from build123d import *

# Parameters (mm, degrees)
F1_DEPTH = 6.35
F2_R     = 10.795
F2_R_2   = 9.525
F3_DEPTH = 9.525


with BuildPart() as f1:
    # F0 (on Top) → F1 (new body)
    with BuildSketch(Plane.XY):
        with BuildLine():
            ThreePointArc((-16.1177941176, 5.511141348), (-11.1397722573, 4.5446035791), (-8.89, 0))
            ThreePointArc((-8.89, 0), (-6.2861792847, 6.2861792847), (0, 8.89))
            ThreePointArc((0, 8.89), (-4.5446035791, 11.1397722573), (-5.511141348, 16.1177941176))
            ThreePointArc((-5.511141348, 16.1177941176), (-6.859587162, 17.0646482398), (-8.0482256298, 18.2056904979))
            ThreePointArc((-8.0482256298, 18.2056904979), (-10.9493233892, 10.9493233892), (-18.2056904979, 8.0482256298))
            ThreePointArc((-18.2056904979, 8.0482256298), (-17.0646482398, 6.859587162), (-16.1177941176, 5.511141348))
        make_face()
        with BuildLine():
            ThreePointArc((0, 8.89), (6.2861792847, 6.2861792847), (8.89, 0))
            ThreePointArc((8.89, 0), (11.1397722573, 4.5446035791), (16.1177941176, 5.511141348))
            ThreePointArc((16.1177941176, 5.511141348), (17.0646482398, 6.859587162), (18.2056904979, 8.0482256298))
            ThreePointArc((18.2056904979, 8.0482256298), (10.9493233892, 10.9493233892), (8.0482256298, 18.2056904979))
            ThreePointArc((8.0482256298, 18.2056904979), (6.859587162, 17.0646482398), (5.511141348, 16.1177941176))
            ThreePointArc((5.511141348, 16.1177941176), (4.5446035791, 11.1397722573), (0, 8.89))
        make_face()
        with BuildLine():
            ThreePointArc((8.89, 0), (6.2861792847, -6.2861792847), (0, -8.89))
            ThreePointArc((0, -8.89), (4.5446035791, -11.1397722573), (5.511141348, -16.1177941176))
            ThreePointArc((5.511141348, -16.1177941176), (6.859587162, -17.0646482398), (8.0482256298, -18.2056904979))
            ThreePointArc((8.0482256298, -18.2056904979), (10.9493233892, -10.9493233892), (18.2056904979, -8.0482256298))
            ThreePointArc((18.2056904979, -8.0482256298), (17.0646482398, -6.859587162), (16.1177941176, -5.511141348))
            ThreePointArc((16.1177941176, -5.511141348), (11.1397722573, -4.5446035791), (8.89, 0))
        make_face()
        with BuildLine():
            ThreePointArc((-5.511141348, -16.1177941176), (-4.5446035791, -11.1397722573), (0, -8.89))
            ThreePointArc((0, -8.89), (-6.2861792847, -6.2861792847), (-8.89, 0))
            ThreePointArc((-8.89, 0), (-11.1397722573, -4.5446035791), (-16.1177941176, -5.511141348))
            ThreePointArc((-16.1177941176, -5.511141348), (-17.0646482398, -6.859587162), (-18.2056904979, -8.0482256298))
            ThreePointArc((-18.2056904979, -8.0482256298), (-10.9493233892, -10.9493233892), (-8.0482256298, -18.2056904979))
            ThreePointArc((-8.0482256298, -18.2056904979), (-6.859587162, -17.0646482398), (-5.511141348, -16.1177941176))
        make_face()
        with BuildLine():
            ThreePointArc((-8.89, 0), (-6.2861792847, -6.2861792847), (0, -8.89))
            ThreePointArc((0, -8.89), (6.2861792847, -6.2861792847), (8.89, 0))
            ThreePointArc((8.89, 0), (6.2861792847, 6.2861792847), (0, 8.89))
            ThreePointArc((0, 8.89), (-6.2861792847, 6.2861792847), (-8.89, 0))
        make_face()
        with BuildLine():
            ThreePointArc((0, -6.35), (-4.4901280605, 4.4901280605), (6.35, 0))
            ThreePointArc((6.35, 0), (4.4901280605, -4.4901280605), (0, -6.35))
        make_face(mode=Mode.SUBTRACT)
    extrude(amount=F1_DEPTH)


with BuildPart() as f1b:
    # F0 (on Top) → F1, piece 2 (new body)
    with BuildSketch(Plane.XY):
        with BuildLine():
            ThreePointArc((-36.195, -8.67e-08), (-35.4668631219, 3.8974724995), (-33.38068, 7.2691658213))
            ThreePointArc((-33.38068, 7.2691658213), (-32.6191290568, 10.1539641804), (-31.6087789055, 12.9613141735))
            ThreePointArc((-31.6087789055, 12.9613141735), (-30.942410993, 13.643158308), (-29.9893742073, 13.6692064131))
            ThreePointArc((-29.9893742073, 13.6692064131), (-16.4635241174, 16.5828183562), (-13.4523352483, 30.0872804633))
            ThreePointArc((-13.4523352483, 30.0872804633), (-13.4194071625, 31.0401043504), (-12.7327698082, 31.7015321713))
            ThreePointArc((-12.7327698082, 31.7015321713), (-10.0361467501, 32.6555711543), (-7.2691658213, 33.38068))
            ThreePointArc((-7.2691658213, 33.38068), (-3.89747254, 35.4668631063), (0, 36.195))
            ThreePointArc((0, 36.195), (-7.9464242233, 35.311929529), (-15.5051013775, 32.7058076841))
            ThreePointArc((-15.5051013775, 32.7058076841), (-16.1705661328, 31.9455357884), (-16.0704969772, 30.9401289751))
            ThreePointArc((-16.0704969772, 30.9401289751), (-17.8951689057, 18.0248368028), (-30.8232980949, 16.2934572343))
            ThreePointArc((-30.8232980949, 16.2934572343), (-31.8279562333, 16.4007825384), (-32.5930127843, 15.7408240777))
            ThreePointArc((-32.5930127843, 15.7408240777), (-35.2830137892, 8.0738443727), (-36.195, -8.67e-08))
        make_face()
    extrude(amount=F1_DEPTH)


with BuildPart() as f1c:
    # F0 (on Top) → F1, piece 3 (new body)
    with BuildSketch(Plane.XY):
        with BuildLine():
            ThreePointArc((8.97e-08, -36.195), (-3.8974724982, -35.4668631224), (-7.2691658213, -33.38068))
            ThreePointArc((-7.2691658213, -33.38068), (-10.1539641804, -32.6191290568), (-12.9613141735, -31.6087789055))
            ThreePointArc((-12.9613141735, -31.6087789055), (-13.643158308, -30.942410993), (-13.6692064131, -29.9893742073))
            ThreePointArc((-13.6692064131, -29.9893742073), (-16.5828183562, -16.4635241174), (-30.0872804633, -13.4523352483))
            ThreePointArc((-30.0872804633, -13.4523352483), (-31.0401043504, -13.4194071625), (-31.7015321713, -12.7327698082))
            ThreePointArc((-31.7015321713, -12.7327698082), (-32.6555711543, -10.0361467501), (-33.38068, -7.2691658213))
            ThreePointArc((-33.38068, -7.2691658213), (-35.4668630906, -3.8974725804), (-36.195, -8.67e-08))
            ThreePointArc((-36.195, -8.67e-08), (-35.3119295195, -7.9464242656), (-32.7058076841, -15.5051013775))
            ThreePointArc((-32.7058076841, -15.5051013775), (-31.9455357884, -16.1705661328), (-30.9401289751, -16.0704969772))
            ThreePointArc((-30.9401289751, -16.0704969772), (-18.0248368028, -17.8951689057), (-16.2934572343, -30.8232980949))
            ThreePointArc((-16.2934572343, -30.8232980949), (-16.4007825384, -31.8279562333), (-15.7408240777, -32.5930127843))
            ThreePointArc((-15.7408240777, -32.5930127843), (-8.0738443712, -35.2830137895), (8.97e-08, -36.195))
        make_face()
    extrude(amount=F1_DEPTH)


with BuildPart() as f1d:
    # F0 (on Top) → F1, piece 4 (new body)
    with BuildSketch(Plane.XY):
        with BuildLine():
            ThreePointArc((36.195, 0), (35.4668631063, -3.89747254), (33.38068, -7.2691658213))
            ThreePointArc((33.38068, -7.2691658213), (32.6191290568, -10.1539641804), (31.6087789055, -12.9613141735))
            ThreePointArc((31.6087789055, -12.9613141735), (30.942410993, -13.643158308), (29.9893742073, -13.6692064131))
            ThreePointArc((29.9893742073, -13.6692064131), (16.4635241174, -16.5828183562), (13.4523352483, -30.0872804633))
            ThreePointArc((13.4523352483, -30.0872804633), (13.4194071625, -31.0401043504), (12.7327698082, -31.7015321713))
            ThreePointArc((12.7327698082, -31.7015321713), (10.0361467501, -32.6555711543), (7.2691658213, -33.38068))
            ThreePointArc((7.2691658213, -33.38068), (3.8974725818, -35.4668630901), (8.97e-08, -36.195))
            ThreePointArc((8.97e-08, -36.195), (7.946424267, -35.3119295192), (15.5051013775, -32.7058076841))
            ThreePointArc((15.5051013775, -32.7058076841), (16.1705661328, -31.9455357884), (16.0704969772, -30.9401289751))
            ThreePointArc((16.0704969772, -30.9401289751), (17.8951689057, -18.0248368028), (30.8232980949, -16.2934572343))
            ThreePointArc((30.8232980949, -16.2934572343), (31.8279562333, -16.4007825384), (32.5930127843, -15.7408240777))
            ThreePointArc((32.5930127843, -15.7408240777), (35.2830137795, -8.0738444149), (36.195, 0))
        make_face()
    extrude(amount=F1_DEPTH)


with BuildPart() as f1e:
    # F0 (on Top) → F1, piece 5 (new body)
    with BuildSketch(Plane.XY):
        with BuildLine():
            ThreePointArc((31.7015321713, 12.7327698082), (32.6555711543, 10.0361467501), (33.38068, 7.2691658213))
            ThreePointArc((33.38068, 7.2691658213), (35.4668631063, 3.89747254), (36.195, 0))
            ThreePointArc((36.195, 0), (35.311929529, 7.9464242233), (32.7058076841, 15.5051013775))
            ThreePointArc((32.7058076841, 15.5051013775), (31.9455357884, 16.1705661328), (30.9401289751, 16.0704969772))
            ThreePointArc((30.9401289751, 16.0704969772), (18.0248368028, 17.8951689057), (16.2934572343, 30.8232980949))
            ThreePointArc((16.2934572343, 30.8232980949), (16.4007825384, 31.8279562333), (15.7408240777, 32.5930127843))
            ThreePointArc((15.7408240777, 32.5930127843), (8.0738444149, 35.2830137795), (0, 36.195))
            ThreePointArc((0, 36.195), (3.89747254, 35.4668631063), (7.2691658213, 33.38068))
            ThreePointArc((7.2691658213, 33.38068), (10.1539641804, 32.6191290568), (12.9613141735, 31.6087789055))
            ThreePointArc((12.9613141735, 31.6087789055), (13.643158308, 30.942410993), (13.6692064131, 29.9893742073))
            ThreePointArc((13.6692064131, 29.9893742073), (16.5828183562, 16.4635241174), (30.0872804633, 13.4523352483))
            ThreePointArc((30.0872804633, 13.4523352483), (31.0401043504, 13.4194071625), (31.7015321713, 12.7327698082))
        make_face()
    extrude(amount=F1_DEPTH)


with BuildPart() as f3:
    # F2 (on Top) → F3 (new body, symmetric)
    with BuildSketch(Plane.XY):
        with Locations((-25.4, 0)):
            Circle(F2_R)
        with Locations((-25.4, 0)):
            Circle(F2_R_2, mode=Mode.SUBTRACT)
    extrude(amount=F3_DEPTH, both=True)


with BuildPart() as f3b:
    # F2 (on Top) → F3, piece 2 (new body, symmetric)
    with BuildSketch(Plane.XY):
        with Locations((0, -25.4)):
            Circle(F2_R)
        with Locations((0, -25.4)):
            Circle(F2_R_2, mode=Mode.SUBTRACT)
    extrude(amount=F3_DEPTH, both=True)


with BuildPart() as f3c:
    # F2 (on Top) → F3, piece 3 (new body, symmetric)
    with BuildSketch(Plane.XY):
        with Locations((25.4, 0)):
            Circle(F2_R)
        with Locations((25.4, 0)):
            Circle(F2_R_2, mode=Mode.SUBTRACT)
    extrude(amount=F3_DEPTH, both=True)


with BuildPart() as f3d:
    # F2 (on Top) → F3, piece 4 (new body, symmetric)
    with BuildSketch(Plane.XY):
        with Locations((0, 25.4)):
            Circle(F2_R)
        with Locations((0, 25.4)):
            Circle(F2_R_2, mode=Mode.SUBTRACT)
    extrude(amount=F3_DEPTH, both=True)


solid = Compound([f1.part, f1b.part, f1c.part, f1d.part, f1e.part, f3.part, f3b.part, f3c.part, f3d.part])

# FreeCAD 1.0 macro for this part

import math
import FreeCAD as App
import Part
import Sketcher
Q = App.Units.Quantity

doc = App.newDocument("Part")
body = doc.addObject("PartDesign::Body", "Body")

# Sketch on XY plane
sketch1 = body.newObject("Sketcher::SketchObject", "Sketch")
sketch1.AttachmentSupport = (doc.getObject("XY_Plane"), [""])
sketch1.MapMode = "FlatFace"
sketch1.addGeometry([
    Part.ArcOfCircle(Part.Circle(App.Vector(-14.6, 0, 0), App.Vector(0, 0, 1), 5.7), math.radians(0), math.radians(105)),  # 0
    Part.ArcOfCircle(Part.Circle(App.Vector(-14.6, 0, 0), App.Vector(0, 0, 1), 5.7), math.radians(-105), math.radians(0)),  # 1
    Part.ArcOfCircle(Part.Circle(App.Vector(-25.4, 0, 0), App.Vector(0, 0, 1), 10.8), math.radians(-48.21), math.radians(-30.7)),  # 2
    Part.ArcOfCircle(Part.Circle(App.Vector(-18, -18, 0), App.Vector(0, 0, 1), 9.9), math.radians(-1), math.radians(91)),  # 3
    Part.ArcOfCircle(Part.Circle(App.Vector(0, -25.4, 0), App.Vector(0, 0, 1), 10.8), math.radians(120.7), math.radians(138.21)),  # 4
    Part.ArcOfCircle(Part.Circle(App.Vector(0, -14.6, 0), App.Vector(0, 0, 1), 5.7), math.radians(90), math.radians(195)),  # 5
    Part.ArcOfCircle(Part.Circle(App.Vector(0, -14.6, 0), App.Vector(0, 0, 1), 5.7), math.radians(-15), math.radians(90)),  # 6
    Part.ArcOfCircle(Part.Circle(App.Vector(0, -25.4, 0), App.Vector(0, 0, 1), 10.8), math.radians(41.79), math.radians(59.3)),  # 7
    Part.ArcOfCircle(Part.Circle(App.Vector(18, -18, 0), App.Vector(0, 0, 1), 9.9), math.radians(89), math.radians(181)),  # 8
    Part.ArcOfCircle(Part.Circle(App.Vector(25.4, 0, 0), App.Vector(0, 0, 1), 10.8), math.radians(-149.3), math.radians(-131.79)),  # 9
    Part.ArcOfCircle(Part.Circle(App.Vector(14.6, 0, 0), App.Vector(0, 0, 1), 5.7), math.radians(180), math.radians(285)),  # 10
    Part.ArcOfCircle(Part.Circle(App.Vector(14.6, 0, 0), App.Vector(0, 0, 1), 5.7), math.radians(75), math.radians(180)),  # 11
    Part.ArcOfCircle(Part.Circle(App.Vector(25.4, 0, 0), App.Vector(0, 0, 1), 10.8), math.radians(131.79), math.radians(149.3)),  # 12
    Part.ArcOfCircle(Part.Circle(App.Vector(18, 18, 0), App.Vector(0, 0, 1), 9.9), math.radians(179), math.radians(271)),  # 13
    Part.ArcOfCircle(Part.Circle(App.Vector(0, 25.4, 0), App.Vector(0, 0, 1), 10.8), math.radians(-59.3), math.radians(-41.79)),  # 14
    Part.ArcOfCircle(Part.Circle(App.Vector(0, 14.6, 0), App.Vector(0, 0, 1), 5.7), math.radians(-90), math.radians(15)),  # 15
    Part.ArcOfCircle(Part.Circle(App.Vector(0, 14.6, 0), App.Vector(0, 0, 1), 5.7), math.radians(165), math.radians(270)),  # 16
    Part.ArcOfCircle(Part.Circle(App.Vector(0, 25.4, 0), App.Vector(0, 0, 1), 10.8), math.radians(-138.21), math.radians(-120.7)),  # 17
    Part.ArcOfCircle(Part.Circle(App.Vector(-18, 18, 0), App.Vector(0, 0, 1), 9.9), math.radians(-91), math.radians(1)),  # 18
    Part.ArcOfCircle(Part.Circle(App.Vector(-25.4, 0, 0), App.Vector(0, 0, 1), 10.8), math.radians(30.7), math.radians(48.21)),  # 19
    Part.ArcOfCircle(Part.Circle(App.Vector(0, 0, 0), App.Vector(0, 0, 1), 6.3), math.radians(-90), math.radians(0)),  # 20
    Part.ArcOfCircle(Part.Circle(App.Vector(0, 0, 0), App.Vector(0, 0, 1), 6.3), math.radians(0), math.radians(270)),  # 21
], False)
sketch1.addConstraint([
    Sketcher.Constraint("Tangent", 0, 1, 1, 2),
    Sketcher.Constraint("Coincident", 1, 1, 2, 2),
    Sketcher.Constraint("Coincident", 2, 1, 3, 2),
    Sketcher.Constraint("Coincident", 3, 1, 4, 2),
    Sketcher.Constraint("Coincident", 4, 1, 5, 2),
    Sketcher.Constraint("Tangent", 5, 1, 6, 2),
    Sketcher.Constraint("Coincident", 6, 1, 7, 2),
    Sketcher.Constraint("Coincident", 7, 1, 8, 2),
    Sketcher.Constraint("Coincident", 8, 1, 9, 2),
    Sketcher.Constraint("Coincident", 9, 1, 10, 2),
    Sketcher.Constraint("Tangent", 10, 1, 11, 2),
    Sketcher.Constraint("Coincident", 11, 1, 12, 2),
    Sketcher.Constraint("Coincident", 12, 1, 13, 2),
    Sketcher.Constraint("Coincident", 13, 1, 14, 2),
    Sketcher.Constraint("Coincident", 14, 1, 15, 2),
    Sketcher.Constraint("Tangent", 15, 1, 16, 2),
    Sketcher.Constraint("Coincident", 16, 1, 17, 2),
    Sketcher.Constraint("Coincident", 17, 1, 18, 2),
    Sketcher.Constraint("Coincident", 18, 1, 19, 2),
    Sketcher.Constraint("Coincident", 19, 1, 0, 2),
    Sketcher.Constraint("Tangent", 20, 1, 21, 2),
    Sketcher.Constraint("Coincident", 21, 1, 20, 2),
    Sketcher.Constraint("Coincident", 20, 3, -1, 1),
    Sketcher.Constraint("Coincident", 7, 3, 4, 3),
    Sketcher.Constraint("Coincident", 12, 3, 9, 3),
    Sketcher.Constraint("Coincident", 17, 3, 14, 3),
    Sketcher.Constraint("Coincident", 19, 3, 2, 3),
    Sketcher.Constraint("Equal", 0, 1),
    Sketcher.Constraint("Equal", 2, 4),
    Sketcher.Constraint("Equal", 1, 5),
    Sketcher.Constraint("Equal", 5, 6),
    Sketcher.Constraint("Equal", 4, 7),
    Sketcher.Constraint("Equal", 3, 8),
    Sketcher.Constraint("Equal", 7, 9),
    Sketcher.Constraint("Equal", 6, 10),
    Sketcher.Constraint("Equal", 10, 11),
    Sketcher.Constraint("Equal", 9, 12),
    Sketcher.Constraint("Equal", 8, 13),
    Sketcher.Constraint("Equal", 12, 14),
    Sketcher.Constraint("Equal", 11, 15),
    Sketcher.Constraint("Equal", 15, 16),
    Sketcher.Constraint("Equal", 14, 17),
    Sketcher.Constraint("Equal", 13, 18),
    Sketcher.Constraint("Equal", 17, 19),
    Sketcher.Constraint("Symmetric", 2, 3, 9, 3, -1, 1),
    Sketcher.Constraint("Symmetric", 0, 3, 10, 3, -1, 1),
    Sketcher.Constraint("Symmetric", 3, 3, 13, 3, -1, 1),
    Sketcher.Constraint("Symmetric", 4, 3, 14, 3, -1, 1),
    Sketcher.Constraint("Symmetric", 5, 3, 15, 3, -1, 1),
    Sketcher.Constraint("Symmetric", 8, 3, 18, 3, -1, 1),
    Sketcher.Constraint("Symmetric", 3, 3, 8, 3, -2),
    Sketcher.Constraint("Symmetric", 4, 1, 6, 1, -2),
    Sketcher.Constraint("Symmetric", 1, 1, 9, 1, -2),
    Sketcher.Constraint("PointOnObject", 0, 1, -1),
    Sketcher.Constraint("PointOnObject", 5, 1, -2),
    Sketcher.Constraint("PointOnObject", 10, 1, -1),
    Sketcher.Constraint("PointOnObject", 15, 1, -2),
    Sketcher.Constraint("PointOnObject", 20, 1, -2),
    Sketcher.Constraint("PointOnObject", 21, 1, -1),
    Sketcher.Constraint("Radius", 20, Q("0.25 in")),
    Sketcher.Constraint("DistanceX", 2, 3, -1, 1, Q("1 in")),
    Sketcher.Constraint("DistanceY", 4, 3, -1, 1, Q("1 in")),
    Sketcher.Constraint("Radius", 0, Q("0.225 in")),
    Sketcher.Constraint("Radius", 2, Q("0.425 in")),
    Sketcher.Constraint("DistanceY", 5, 1, 20, 1, Q("0.1 in")),
    Sketcher.Constraint("DistanceX", 21, 1, 10, 1, Q("0.1 in")),
    Sketcher.Constraint("Radius", 3, 9.915318),
    Sketcher.Constraint("DistanceX", 2, 1, -1, 1, 18.20569),
    Sketcher.Constraint("DistanceY", 3, 1, -1, 1, 18.20569),
])
pad1 = body.newObject("PartDesign::Pad", "Pad")
pad1.Profile = sketch1
pad1.Length = Q("0.25 in")
body2 = doc.addObject("PartDesign::Body", "Body001")

# Sketch on XY plane
sketch2 = body2.newObject("Sketcher::SketchObject", "Sketch001")
sketch2.AttachmentSupport = (doc.getObject("XY_Plane001"), [""])
sketch2.MapMode = "FlatFace"
sketch2.addGeometry([
    Part.ArcOfCircle(Part.Circle(App.Vector(-25.4, 0, 0), App.Vector(0, 0, 1), 10.8), math.radians(138), math.radians(180)),  # 0
    Part.ArcOfCircle(Part.Circle(App.Vector(0, 0, 0), App.Vector(0, 0, 1), 34.2), math.radians(157.7), math.radians(167.71)),  # 1
    Part.ArcOfCircle(Part.Circle(App.Vector(-30.4, 12.5, 0), App.Vector(0, 0, 1), 1.3), math.radians(70), math.radians(158)),  # 2
    Part.ArcOfCircle(Part.Circle(App.Vector(-25.5, 25.7, 0), App.Vector(0, 0, 1), 12.8), math.radians(-110), math.radians(20)),  # 3
    Part.ArcOfCircle(Part.Circle(App.Vector(-12.3, 30.5, 0), App.Vector(0, 0, 1), 1.3), math.radians(112), math.radians(200)),  # 4
    Part.ArcOfCircle(Part.Circle(App.Vector(0, 0, 0), App.Vector(0, 0, 1), 34.2), math.radians(102.29), math.radians(111.88)),  # 5
    Part.ArcOfCircle(Part.Circle(App.Vector(0, 25.4, 0), App.Vector(0, 0, 1), 10.8), math.radians(90), math.radians(132)),  # 6
    Part.ArcOfCircle(Part.Circle(App.Vector(0, 0, 0), App.Vector(0, 0, 1), 36.2), math.radians(90), math.radians(115)),  # 7
    Part.ArcOfCircle(Part.Circle(App.Vector(-15, 31.6, 0), App.Vector(0, 0, 1), 1.3), math.radians(115), math.radians(209)),  # 8
    Part.ArcOfCircle(Part.Circle(App.Vector(-25.5, 25.7, 0), App.Vector(0, 0, 1), 10.8), math.radians(-120), math.radians(29)),  # 9
    Part.ArcOfCircle(Part.Circle(App.Vector(-31.4, 15.2, 0), App.Vector(0, 0, 1), 1.3), math.radians(60), math.radians(154)),  # 10
    Part.ArcOfCircle(Part.Circle(App.Vector(0, 0, 0), App.Vector(0, 0, 1), 36.2), math.radians(154), math.radians(180)),  # 11
], False)
sketch2.addConstraint([
    Sketcher.Constraint("Coincident", 0, 1, 1, 2),
    Sketcher.Constraint("Tangent", 1, 1, 2, 2),
    Sketcher.Constraint("Tangent", 2, 1, 3, 1),
    Sketcher.Constraint("Tangent", 3, 2, 4, 2),
    Sketcher.Constraint("Tangent", 4, 1, 5, 2),
    Sketcher.Constraint("Coincident", 5, 1, 6, 2),
    Sketcher.Constraint("Tangent", 6, 1, 7, 1),
    Sketcher.Constraint("Tangent", 7, 2, 8, 1),
    Sketcher.Constraint("Tangent", 8, 2, 9, 2),
    Sketcher.Constraint("Tangent", 9, 1, 10, 1),
    Sketcher.Constraint("Tangent", 10, 2, 11, 1),
    Sketcher.Constraint("Tangent", 11, 2, 0, 2),
    Sketcher.Constraint("Coincident", 1, 3, -1, 1),
    Sketcher.Constraint("Coincident", 5, 3, -1, 1),
    Sketcher.Constraint("Coincident", 7, 3, -1, 1),
    Sketcher.Constraint("Coincident", 11, 3, -1, 1),
    Sketcher.Constraint("Coincident", 9, 3, 3, 3),
    Sketcher.Constraint("Equal", 2, 4),
    Sketcher.Constraint("Equal", 1, 5),
    Sketcher.Constraint("Equal", 0, 6),
    Sketcher.Constraint("Equal", 4, 8),
    Sketcher.Constraint("Equal", 8, 10),
    Sketcher.Constraint("Equal", 7, 11),
    Sketcher.Constraint("PointOnObject", 0, 3, -1),
    Sketcher.Constraint("PointOnObject", 6, 3, -2),
    Sketcher.Constraint("Radius", 2, Q("0.05 in")),
    Sketcher.Constraint("DistanceX", 0, 3, -1, 1, Q("1 in")),
    Sketcher.Constraint("Radius", 0, Q("0.425 in")),
    Sketcher.Constraint("Radius", 1, Q("1.345 in")),
    Sketcher.Constraint("Radius", 3, 12.827555),
    Sketcher.Constraint("Radius", 9, 10.795555),
    Sketcher.Constraint("DistanceX", 10, 3, -1, 1, 31.449398),
    Sketcher.Constraint("DistanceX", 7, 2, -1, 1, 15.505101),
])
pad2 = body2.newObject("PartDesign::Pad", "Pad001")
pad2.Profile = sketch2
pad2.Length = Q("0.25 in")
body3 = doc.addObject("PartDesign::Body", "Body002")

# Sketch on XY plane
sketch3 = body3.newObject("Sketcher::SketchObject", "Sketch002")
sketch3.AttachmentSupport = (doc.getObject("XY_Plane002"), [""])
sketch3.MapMode = "FlatFace"
sketch3.addGeometry([
    Part.ArcOfCircle(Part.Circle(App.Vector(0, -25.4, 0), App.Vector(0, 0, 1), 10.8), math.radians(-132), math.radians(-90)),  # 0
    Part.ArcOfCircle(Part.Circle(App.Vector(0, 0, 0), App.Vector(0, 0, 1), 34.2), math.radians(-112.3), math.radians(-102.29)),  # 1
    Part.ArcOfCircle(Part.Circle(App.Vector(-12.5, -30.4, 0), App.Vector(0, 0, 1), 1.3), math.radians(160), math.radians(248)),  # 2
    Part.ArcOfCircle(Part.Circle(App.Vector(-25.7, -25.5, 0), App.Vector(0, 0, 1), 12.8), math.radians(-20), math.radians(110)),  # 3
    Part.ArcOfCircle(Part.Circle(App.Vector(-30.5, -12.3, 0), App.Vector(0, 0, 1), 1.3), math.radians(-158), math.radians(-70)),  # 4
    Part.ArcOfCircle(Part.Circle(App.Vector(0, 0, 0), App.Vector(0, 0, 1), 34.2), math.radians(-167.71), math.radians(-158.12)),  # 5
    Part.ArcOfCircle(Part.Circle(App.Vector(-25.4, 0, 0), App.Vector(0, 0, 1), 10.8), math.radians(-180), math.radians(-138)),  # 6
    Part.ArcOfCircle(Part.Circle(App.Vector(0, 0, 0), App.Vector(0, 0, 1), 36.2), math.radians(-180), math.radians(-155)),  # 7
    Part.ArcOfCircle(Part.Circle(App.Vector(-31.6, -15, 0), App.Vector(0, 0, 1), 1.3), math.radians(-155), math.radians(-61)),  # 8
    Part.ArcOfCircle(Part.Circle(App.Vector(-25.7, -25.5, 0), App.Vector(0, 0, 1), 10.8), math.radians(-30), math.radians(119)),  # 9
    Part.ArcOfCircle(Part.Circle(App.Vector(-15.2, -31.4, 0), App.Vector(0, 0, 1), 1.3), math.radians(150), math.radians(244)),  # 10
    Part.ArcOfCircle(Part.Circle(App.Vector(0, 0, 0), App.Vector(0, 0, 1), 36.2), math.radians(-116), math.radians(-90)),  # 11
], False)
sketch3.addConstraint([
    Sketcher.Constraint("Coincident", 0, 1, 1, 2),
    Sketcher.Constraint("Tangent", 1, 1, 2, 2),
    Sketcher.Constraint("Tangent", 2, 1, 3, 1),
    Sketcher.Constraint("Tangent", 3, 2, 4, 2),
    Sketcher.Constraint("Tangent", 4, 1, 5, 2),
    Sketcher.Constraint("Coincident", 5, 1, 6, 2),
    Sketcher.Constraint("Tangent", 6, 1, 7, 1),
    Sketcher.Constraint("Tangent", 7, 2, 8, 1),
    Sketcher.Constraint("Tangent", 8, 2, 9, 2),
    Sketcher.Constraint("Tangent", 9, 1, 10, 1),
    Sketcher.Constraint("Tangent", 10, 2, 11, 1),
    Sketcher.Constraint("Tangent", 11, 2, 0, 2),
    Sketcher.Constraint("Coincident", 1, 3, -1, 1),
    Sketcher.Constraint("Coincident", 5, 3, -1, 1),
    Sketcher.Constraint("Coincident", 7, 3, -1, 1),
    Sketcher.Constraint("Coincident", 11, 3, -1, 1),
    Sketcher.Constraint("Coincident", 9, 3, 3, 3),
    Sketcher.Constraint("Equal", 2, 4),
    Sketcher.Constraint("Equal", 1, 5),
    Sketcher.Constraint("Equal", 0, 6),
    Sketcher.Constraint("Equal", 4, 8),
    Sketcher.Constraint("Equal", 8, 10),
    Sketcher.Constraint("Equal", 7, 11),
    Sketcher.Constraint("PointOnObject", 0, 3, -2),
    Sketcher.Constraint("PointOnObject", 6, 3, -1),
    Sketcher.Constraint("Radius", 2, Q("0.05 in")),
    Sketcher.Constraint("DistanceY", 0, 3, -1, 1, Q("1 in")),
    Sketcher.Constraint("Radius", 0, Q("0.425 in")),
    Sketcher.Constraint("Radius", 1, Q("1.345 in")),
    Sketcher.Constraint("Radius", 3, 12.827555),
    Sketcher.Constraint("Radius", 9, 10.795555),
    Sketcher.Constraint("DistanceY", 10, 3, -1, 1, 31.449398),
    Sketcher.Constraint("DistanceY", 7, 2, -1, 1, 15.505101),
])
pad3 = body3.newObject("PartDesign::Pad", "Pad002")
pad3.Profile = sketch3
pad3.Length = Q("0.25 in")
body4 = doc.addObject("PartDesign::Body", "Body003")

# Sketch on XY plane
sketch4 = body4.newObject("Sketcher::SketchObject", "Sketch003")
sketch4.AttachmentSupport = (doc.getObject("XY_Plane003"), [""])
sketch4.MapMode = "FlatFace"
sketch4.addGeometry([
    Part.ArcOfCircle(Part.Circle(App.Vector(25.4, 0, 0), App.Vector(0, 0, 1), 10.8), math.radians(-42), math.radians(0)),  # 0
    Part.ArcOfCircle(Part.Circle(App.Vector(0, 0, 0), App.Vector(0, 0, 1), 34.2), math.radians(-22.3), math.radians(-12.29)),  # 1
    Part.ArcOfCircle(Part.Circle(App.Vector(30.4, -12.5, 0), App.Vector(0, 0, 1), 1.3), math.radians(-110), math.radians(-22)),  # 2
    Part.ArcOfCircle(Part.Circle(App.Vector(25.5, -25.7, 0), App.Vector(0, 0, 1), 12.8), math.radians(70), math.radians(200)),  # 3
    Part.ArcOfCircle(Part.Circle(App.Vector(12.3, -30.5, 0), App.Vector(0, 0, 1), 1.3), math.radians(-68), math.radians(20)),  # 4
    Part.ArcOfCircle(Part.Circle(App.Vector(0, 0, 0), App.Vector(0, 0, 1), 34.2), math.radians(-77.71), math.radians(-68.12)),  # 5
    Part.ArcOfCircle(Part.Circle(App.Vector(0, -25.4, 0), App.Vector(0, 0, 1), 10.8), math.radians(-90), math.radians(-48)),  # 6
    Part.ArcOfCircle(Part.Circle(App.Vector(0, 0, 0), App.Vector(0, 0, 1), 36.2), math.radians(-90), math.radians(-65)),  # 7
    Part.ArcOfCircle(Part.Circle(App.Vector(15, -31.6, 0), App.Vector(0, 0, 1), 1.3), math.radians(-65), math.radians(29)),  # 8
    Part.ArcOfCircle(Part.Circle(App.Vector(25.5, -25.7, 0), App.Vector(0, 0, 1), 10.8), math.radians(60), math.radians(209)),  # 9
    Part.ArcOfCircle(Part.Circle(App.Vector(31.4, -15.2, 0), App.Vector(0, 0, 1), 1.3), math.radians(-120), math.radians(-26)),  # 10
    Part.ArcOfCircle(Part.Circle(App.Vector(0, 0, 0), App.Vector(0, 0, 1), 36.2), math.radians(-26), math.radians(0)),  # 11
], False)
sketch4.addConstraint([
    Sketcher.Constraint("Coincident", 0, 1, 1, 2),
    Sketcher.Constraint("Tangent", 1, 1, 2, 2),
    Sketcher.Constraint("Tangent", 2, 1, 3, 1),
    Sketcher.Constraint("Tangent", 3, 2, 4, 2),
    Sketcher.Constraint("Tangent", 4, 1, 5, 2),
    Sketcher.Constraint("Coincident", 5, 1, 6, 2),
    Sketcher.Constraint("Tangent", 6, 1, 7, 1),
    Sketcher.Constraint("Tangent", 7, 2, 8, 1),
    Sketcher.Constraint("Tangent", 8, 2, 9, 2),
    Sketcher.Constraint("Tangent", 9, 1, 10, 1),
    Sketcher.Constraint("Tangent", 10, 2, 11, 1),
    Sketcher.Constraint("Tangent", 11, 2, 0, 2),
    Sketcher.Constraint("Coincident", 1, 3, -1, 1),
    Sketcher.Constraint("Coincident", 5, 3, -1, 1),
    Sketcher.Constraint("Coincident", 7, 3, -1, 1),
    Sketcher.Constraint("Coincident", 11, 3, -1, 1),
    Sketcher.Constraint("Coincident", 9, 3, 3, 3),
    Sketcher.Constraint("Equal", 2, 4),
    Sketcher.Constraint("Equal", 1, 5),
    Sketcher.Constraint("Equal", 0, 6),
    Sketcher.Constraint("Equal", 4, 8),
    Sketcher.Constraint("Equal", 8, 10),
    Sketcher.Constraint("Equal", 7, 11),
    Sketcher.Constraint("PointOnObject", 0, 3, -1),
    Sketcher.Constraint("PointOnObject", 6, 3, -2),
    Sketcher.Constraint("Radius", 2, Q("0.05 in")),
    Sketcher.Constraint("DistanceX", -1, 1, 0, 3, Q("1 in")),
    Sketcher.Constraint("Radius", 0, Q("0.425 in")),
    Sketcher.Constraint("Radius", 1, Q("1.345 in")),
    Sketcher.Constraint("Radius", 3, 12.827555),
    Sketcher.Constraint("Radius", 9, 10.795555),
    Sketcher.Constraint("DistanceX", -1, 1, 10, 3, 31.449398),
    Sketcher.Constraint("DistanceX", -1, 1, 7, 2, 15.505101),
])
pad4 = body4.newObject("PartDesign::Pad", "Pad003")
pad4.Profile = sketch4
pad4.Length = Q("0.25 in")
body5 = doc.addObject("PartDesign::Body", "Body004")

# Sketch on XY plane
sketch5 = body5.newObject("Sketcher::SketchObject", "Sketch004")
sketch5.AttachmentSupport = (doc.getObject("XY_Plane004"), [""])
sketch5.MapMode = "FlatFace"
sketch5.addGeometry([
    Part.ArcOfCircle(Part.Circle(App.Vector(0, 0, 0), App.Vector(0, 0, 1), 34.2), math.radians(12.29), math.radians(21.88)),  # 0
    Part.ArcOfCircle(Part.Circle(App.Vector(25.4, 0, 0), App.Vector(0, 0, 1), 10.8), math.radians(0), math.radians(42)),  # 1
    Part.ArcOfCircle(Part.Circle(App.Vector(0, 0, 0), App.Vector(0, 0, 1), 36.2), math.radians(0), math.radians(25)),  # 2
    Part.ArcOfCircle(Part.Circle(App.Vector(31.6, 15, 0), App.Vector(0, 0, 1), 1.3), math.radians(25), math.radians(119)),  # 3
    Part.ArcOfCircle(Part.Circle(App.Vector(25.7, 25.5, 0), App.Vector(0, 0, 1), 10.8), math.radians(150), math.radians(299)),  # 4
    Part.ArcOfCircle(Part.Circle(App.Vector(15.2, 31.4, 0), App.Vector(0, 0, 1), 1.3), math.radians(-30), math.radians(64)),  # 5
    Part.ArcOfCircle(Part.Circle(App.Vector(0, 0, 0), App.Vector(0, 0, 1), 36.2), math.radians(64), math.radians(90)),  # 6
    Part.ArcOfCircle(Part.Circle(App.Vector(0, 25.4, 0), App.Vector(0, 0, 1), 10.8), math.radians(48), math.radians(90)),  # 7
    Part.ArcOfCircle(Part.Circle(App.Vector(0, 0, 0), App.Vector(0, 0, 1), 34.2), math.radians(67.7), math.radians(77.71)),  # 8
    Part.ArcOfCircle(Part.Circle(App.Vector(12.5, 30.4, 0), App.Vector(0, 0, 1), 1.3), math.radians(-20), math.radians(68)),  # 9
    Part.ArcOfCircle(Part.Circle(App.Vector(25.7, 25.5, 0), App.Vector(0, 0, 1), 12.8), math.radians(160), math.radians(290)),  # 10
    Part.ArcOfCircle(Part.Circle(App.Vector(30.5, 12.3, 0), App.Vector(0, 0, 1), 1.3), math.radians(22), math.radians(110)),  # 11
], False)
sketch5.addConstraint([
    Sketcher.Constraint("Coincident", 0, 1, 1, 2),
    Sketcher.Constraint("Tangent", 1, 1, 2, 1),
    Sketcher.Constraint("Tangent", 2, 2, 3, 1),
    Sketcher.Constraint("Tangent", 3, 2, 4, 2),
    Sketcher.Constraint("Tangent", 4, 1, 5, 1),
    Sketcher.Constraint("Tangent", 5, 2, 6, 1),
    Sketcher.Constraint("Tangent", 6, 2, 7, 2),
    Sketcher.Constraint("Coincident", 7, 1, 8, 2),
    Sketcher.Constraint("Tangent", 8, 1, 9, 2),
    Sketcher.Constraint("Tangent", 9, 1, 10, 1),
    Sketcher.Constraint("Tangent", 10, 2, 11, 2),
    Sketcher.Constraint("Tangent", 11, 1, 0, 2),
    Sketcher.Constraint("Coincident", 0, 3, -1, 1),
    Sketcher.Constraint("Coincident", 2, 3, -1, 1),
    Sketcher.Constraint("Coincident", 6, 3, -1, 1),
    Sketcher.Constraint("Coincident", 8, 3, -1, 1),
    Sketcher.Constraint("Coincident", 10, 3, 4, 3),
    Sketcher.Constraint("Equal", 3, 5),
    Sketcher.Constraint("Equal", 2, 6),
    Sketcher.Constraint("Equal", 1, 7),
    Sketcher.Constraint("Equal", 0, 8),
    Sketcher.Constraint("Equal", 5, 9),
    Sketcher.Constraint("Equal", 9, 11),
    Sketcher.Constraint("PointOnObject", 1, 3, -1),
    Sketcher.Constraint("PointOnObject", 7, 3, -2),
    Sketcher.Constraint("Radius", 3, Q("0.05 in")),
    Sketcher.Constraint("DistanceX", -1, 1, 1, 3, Q("1 in")),
    Sketcher.Constraint("Radius", 0, Q("1.345 in")),
    Sketcher.Constraint("Radius", 1, Q("0.425 in")),
    Sketcher.Constraint("Radius", 4, 10.795555),
    Sketcher.Constraint("Radius", 10, 12.827555),
    Sketcher.Constraint("DistanceY", -1, 1, 5, 3, 31.449398),
    Sketcher.Constraint("DistanceY", -1, 1, 2, 2, 15.505101),
])
pad5 = body5.newObject("PartDesign::Pad", "Pad004")
pad5.Profile = sketch5
pad5.Length = Q("0.25 in")
body6 = doc.addObject("PartDesign::Body", "Body005")

# Sketch on XY plane
sketch6 = body6.newObject("Sketcher::SketchObject", "Sketch005")
sketch6.AttachmentSupport = (doc.getObject("XY_Plane005"), [""])
sketch6.MapMode = "FlatFace"
sketch6.addGeometry([
    Part.Circle(App.Vector(-25, 0, 0), App.Vector(0, 0, 1), 11),
    Part.Circle(App.Vector(-25, 0, 0), App.Vector(0, 0, 1), 10),
], False)
sketch6.addConstraint([
    Sketcher.Constraint("Coincident", 1, 3, 0, 3),
    Sketcher.Constraint("PointOnObject", 0, 3, -1),
    Sketcher.Constraint("Diameter", 0, Q("0.85 in")),
    Sketcher.Constraint("Diameter", 1, Q("0.75 in")),
    Sketcher.Constraint("DistanceX", 0, 3, -1, 1, Q("1 in")),
])
pad6 = body6.newObject("PartDesign::Pad", "Pad005")
pad6.Profile = sketch6
pad6.Length = Q("0.75 in")
pad6.Midplane = True
body7 = doc.addObject("PartDesign::Body", "Body006")

# Sketch on XY plane
sketch7 = body7.newObject("Sketcher::SketchObject", "Sketch006")
sketch7.AttachmentSupport = (doc.getObject("XY_Plane006"), [""])
sketch7.MapMode = "FlatFace"
sketch7.addGeometry([
    Part.Circle(App.Vector(0, -25, 0), App.Vector(0, 0, 1), 11),
    Part.Circle(App.Vector(0, -25, 0), App.Vector(0, 0, 1), 10),
], False)
sketch7.addConstraint([
    Sketcher.Constraint("Coincident", 1, 3, 0, 3),
    Sketcher.Constraint("PointOnObject", 0, 3, -2),
    Sketcher.Constraint("Diameter", 0, Q("0.85 in")),
    Sketcher.Constraint("Diameter", 1, Q("0.75 in")),
    Sketcher.Constraint("DistanceY", 0, 3, -1, 1, Q("1 in")),
])
pad7 = body7.newObject("PartDesign::Pad", "Pad006")
pad7.Profile = sketch7
pad7.Length = Q("0.75 in")
pad7.Midplane = True
body8 = doc.addObject("PartDesign::Body", "Body007")

# Sketch on XY plane
sketch8 = body8.newObject("Sketcher::SketchObject", "Sketch007")
sketch8.AttachmentSupport = (doc.getObject("XY_Plane007"), [""])
sketch8.MapMode = "FlatFace"
sketch8.addGeometry([
    Part.Circle(App.Vector(25, 0, 0), App.Vector(0, 0, 1), 11),
    Part.Circle(App.Vector(25, 0, 0), App.Vector(0, 0, 1), 10),
], False)
sketch8.addConstraint([
    Sketcher.Constraint("Coincident", 1, 3, 0, 3),
    Sketcher.Constraint("PointOnObject", 0, 3, -1),
    Sketcher.Constraint("Diameter", 0, Q("0.85 in")),
    Sketcher.Constraint("Diameter", 1, Q("0.75 in")),
    Sketcher.Constraint("DistanceX", -1, 1, 0, 3, Q("1 in")),
])
pad8 = body8.newObject("PartDesign::Pad", "Pad007")
pad8.Profile = sketch8
pad8.Length = Q("0.75 in")
pad8.Midplane = True
body9 = doc.addObject("PartDesign::Body", "Body008")

# Sketch on XY plane
sketch9 = body9.newObject("Sketcher::SketchObject", "Sketch008")
sketch9.AttachmentSupport = (doc.getObject("XY_Plane008"), [""])
sketch9.MapMode = "FlatFace"
sketch9.addGeometry([
    Part.Circle(App.Vector(0, 25, 0), App.Vector(0, 0, 1), 11),
    Part.Circle(App.Vector(0, 25, 0), App.Vector(0, 0, 1), 10),
], False)
sketch9.addConstraint([
    Sketcher.Constraint("Coincident", 1, 3, 0, 3),
    Sketcher.Constraint("PointOnObject", 0, 3, -2),
    Sketcher.Constraint("Diameter", 0, Q("0.85 in")),
    Sketcher.Constraint("Diameter", 1, Q("0.75 in")),
    Sketcher.Constraint("DistanceY", -1, 1, 0, 3, Q("1 in")),
])
pad9 = body9.newObject("PartDesign::Pad", "Pad008")
pad9.Profile = sketch9
pad9.Length = Q("0.75 in")
pad9.Midplane = True

doc.recompute()
